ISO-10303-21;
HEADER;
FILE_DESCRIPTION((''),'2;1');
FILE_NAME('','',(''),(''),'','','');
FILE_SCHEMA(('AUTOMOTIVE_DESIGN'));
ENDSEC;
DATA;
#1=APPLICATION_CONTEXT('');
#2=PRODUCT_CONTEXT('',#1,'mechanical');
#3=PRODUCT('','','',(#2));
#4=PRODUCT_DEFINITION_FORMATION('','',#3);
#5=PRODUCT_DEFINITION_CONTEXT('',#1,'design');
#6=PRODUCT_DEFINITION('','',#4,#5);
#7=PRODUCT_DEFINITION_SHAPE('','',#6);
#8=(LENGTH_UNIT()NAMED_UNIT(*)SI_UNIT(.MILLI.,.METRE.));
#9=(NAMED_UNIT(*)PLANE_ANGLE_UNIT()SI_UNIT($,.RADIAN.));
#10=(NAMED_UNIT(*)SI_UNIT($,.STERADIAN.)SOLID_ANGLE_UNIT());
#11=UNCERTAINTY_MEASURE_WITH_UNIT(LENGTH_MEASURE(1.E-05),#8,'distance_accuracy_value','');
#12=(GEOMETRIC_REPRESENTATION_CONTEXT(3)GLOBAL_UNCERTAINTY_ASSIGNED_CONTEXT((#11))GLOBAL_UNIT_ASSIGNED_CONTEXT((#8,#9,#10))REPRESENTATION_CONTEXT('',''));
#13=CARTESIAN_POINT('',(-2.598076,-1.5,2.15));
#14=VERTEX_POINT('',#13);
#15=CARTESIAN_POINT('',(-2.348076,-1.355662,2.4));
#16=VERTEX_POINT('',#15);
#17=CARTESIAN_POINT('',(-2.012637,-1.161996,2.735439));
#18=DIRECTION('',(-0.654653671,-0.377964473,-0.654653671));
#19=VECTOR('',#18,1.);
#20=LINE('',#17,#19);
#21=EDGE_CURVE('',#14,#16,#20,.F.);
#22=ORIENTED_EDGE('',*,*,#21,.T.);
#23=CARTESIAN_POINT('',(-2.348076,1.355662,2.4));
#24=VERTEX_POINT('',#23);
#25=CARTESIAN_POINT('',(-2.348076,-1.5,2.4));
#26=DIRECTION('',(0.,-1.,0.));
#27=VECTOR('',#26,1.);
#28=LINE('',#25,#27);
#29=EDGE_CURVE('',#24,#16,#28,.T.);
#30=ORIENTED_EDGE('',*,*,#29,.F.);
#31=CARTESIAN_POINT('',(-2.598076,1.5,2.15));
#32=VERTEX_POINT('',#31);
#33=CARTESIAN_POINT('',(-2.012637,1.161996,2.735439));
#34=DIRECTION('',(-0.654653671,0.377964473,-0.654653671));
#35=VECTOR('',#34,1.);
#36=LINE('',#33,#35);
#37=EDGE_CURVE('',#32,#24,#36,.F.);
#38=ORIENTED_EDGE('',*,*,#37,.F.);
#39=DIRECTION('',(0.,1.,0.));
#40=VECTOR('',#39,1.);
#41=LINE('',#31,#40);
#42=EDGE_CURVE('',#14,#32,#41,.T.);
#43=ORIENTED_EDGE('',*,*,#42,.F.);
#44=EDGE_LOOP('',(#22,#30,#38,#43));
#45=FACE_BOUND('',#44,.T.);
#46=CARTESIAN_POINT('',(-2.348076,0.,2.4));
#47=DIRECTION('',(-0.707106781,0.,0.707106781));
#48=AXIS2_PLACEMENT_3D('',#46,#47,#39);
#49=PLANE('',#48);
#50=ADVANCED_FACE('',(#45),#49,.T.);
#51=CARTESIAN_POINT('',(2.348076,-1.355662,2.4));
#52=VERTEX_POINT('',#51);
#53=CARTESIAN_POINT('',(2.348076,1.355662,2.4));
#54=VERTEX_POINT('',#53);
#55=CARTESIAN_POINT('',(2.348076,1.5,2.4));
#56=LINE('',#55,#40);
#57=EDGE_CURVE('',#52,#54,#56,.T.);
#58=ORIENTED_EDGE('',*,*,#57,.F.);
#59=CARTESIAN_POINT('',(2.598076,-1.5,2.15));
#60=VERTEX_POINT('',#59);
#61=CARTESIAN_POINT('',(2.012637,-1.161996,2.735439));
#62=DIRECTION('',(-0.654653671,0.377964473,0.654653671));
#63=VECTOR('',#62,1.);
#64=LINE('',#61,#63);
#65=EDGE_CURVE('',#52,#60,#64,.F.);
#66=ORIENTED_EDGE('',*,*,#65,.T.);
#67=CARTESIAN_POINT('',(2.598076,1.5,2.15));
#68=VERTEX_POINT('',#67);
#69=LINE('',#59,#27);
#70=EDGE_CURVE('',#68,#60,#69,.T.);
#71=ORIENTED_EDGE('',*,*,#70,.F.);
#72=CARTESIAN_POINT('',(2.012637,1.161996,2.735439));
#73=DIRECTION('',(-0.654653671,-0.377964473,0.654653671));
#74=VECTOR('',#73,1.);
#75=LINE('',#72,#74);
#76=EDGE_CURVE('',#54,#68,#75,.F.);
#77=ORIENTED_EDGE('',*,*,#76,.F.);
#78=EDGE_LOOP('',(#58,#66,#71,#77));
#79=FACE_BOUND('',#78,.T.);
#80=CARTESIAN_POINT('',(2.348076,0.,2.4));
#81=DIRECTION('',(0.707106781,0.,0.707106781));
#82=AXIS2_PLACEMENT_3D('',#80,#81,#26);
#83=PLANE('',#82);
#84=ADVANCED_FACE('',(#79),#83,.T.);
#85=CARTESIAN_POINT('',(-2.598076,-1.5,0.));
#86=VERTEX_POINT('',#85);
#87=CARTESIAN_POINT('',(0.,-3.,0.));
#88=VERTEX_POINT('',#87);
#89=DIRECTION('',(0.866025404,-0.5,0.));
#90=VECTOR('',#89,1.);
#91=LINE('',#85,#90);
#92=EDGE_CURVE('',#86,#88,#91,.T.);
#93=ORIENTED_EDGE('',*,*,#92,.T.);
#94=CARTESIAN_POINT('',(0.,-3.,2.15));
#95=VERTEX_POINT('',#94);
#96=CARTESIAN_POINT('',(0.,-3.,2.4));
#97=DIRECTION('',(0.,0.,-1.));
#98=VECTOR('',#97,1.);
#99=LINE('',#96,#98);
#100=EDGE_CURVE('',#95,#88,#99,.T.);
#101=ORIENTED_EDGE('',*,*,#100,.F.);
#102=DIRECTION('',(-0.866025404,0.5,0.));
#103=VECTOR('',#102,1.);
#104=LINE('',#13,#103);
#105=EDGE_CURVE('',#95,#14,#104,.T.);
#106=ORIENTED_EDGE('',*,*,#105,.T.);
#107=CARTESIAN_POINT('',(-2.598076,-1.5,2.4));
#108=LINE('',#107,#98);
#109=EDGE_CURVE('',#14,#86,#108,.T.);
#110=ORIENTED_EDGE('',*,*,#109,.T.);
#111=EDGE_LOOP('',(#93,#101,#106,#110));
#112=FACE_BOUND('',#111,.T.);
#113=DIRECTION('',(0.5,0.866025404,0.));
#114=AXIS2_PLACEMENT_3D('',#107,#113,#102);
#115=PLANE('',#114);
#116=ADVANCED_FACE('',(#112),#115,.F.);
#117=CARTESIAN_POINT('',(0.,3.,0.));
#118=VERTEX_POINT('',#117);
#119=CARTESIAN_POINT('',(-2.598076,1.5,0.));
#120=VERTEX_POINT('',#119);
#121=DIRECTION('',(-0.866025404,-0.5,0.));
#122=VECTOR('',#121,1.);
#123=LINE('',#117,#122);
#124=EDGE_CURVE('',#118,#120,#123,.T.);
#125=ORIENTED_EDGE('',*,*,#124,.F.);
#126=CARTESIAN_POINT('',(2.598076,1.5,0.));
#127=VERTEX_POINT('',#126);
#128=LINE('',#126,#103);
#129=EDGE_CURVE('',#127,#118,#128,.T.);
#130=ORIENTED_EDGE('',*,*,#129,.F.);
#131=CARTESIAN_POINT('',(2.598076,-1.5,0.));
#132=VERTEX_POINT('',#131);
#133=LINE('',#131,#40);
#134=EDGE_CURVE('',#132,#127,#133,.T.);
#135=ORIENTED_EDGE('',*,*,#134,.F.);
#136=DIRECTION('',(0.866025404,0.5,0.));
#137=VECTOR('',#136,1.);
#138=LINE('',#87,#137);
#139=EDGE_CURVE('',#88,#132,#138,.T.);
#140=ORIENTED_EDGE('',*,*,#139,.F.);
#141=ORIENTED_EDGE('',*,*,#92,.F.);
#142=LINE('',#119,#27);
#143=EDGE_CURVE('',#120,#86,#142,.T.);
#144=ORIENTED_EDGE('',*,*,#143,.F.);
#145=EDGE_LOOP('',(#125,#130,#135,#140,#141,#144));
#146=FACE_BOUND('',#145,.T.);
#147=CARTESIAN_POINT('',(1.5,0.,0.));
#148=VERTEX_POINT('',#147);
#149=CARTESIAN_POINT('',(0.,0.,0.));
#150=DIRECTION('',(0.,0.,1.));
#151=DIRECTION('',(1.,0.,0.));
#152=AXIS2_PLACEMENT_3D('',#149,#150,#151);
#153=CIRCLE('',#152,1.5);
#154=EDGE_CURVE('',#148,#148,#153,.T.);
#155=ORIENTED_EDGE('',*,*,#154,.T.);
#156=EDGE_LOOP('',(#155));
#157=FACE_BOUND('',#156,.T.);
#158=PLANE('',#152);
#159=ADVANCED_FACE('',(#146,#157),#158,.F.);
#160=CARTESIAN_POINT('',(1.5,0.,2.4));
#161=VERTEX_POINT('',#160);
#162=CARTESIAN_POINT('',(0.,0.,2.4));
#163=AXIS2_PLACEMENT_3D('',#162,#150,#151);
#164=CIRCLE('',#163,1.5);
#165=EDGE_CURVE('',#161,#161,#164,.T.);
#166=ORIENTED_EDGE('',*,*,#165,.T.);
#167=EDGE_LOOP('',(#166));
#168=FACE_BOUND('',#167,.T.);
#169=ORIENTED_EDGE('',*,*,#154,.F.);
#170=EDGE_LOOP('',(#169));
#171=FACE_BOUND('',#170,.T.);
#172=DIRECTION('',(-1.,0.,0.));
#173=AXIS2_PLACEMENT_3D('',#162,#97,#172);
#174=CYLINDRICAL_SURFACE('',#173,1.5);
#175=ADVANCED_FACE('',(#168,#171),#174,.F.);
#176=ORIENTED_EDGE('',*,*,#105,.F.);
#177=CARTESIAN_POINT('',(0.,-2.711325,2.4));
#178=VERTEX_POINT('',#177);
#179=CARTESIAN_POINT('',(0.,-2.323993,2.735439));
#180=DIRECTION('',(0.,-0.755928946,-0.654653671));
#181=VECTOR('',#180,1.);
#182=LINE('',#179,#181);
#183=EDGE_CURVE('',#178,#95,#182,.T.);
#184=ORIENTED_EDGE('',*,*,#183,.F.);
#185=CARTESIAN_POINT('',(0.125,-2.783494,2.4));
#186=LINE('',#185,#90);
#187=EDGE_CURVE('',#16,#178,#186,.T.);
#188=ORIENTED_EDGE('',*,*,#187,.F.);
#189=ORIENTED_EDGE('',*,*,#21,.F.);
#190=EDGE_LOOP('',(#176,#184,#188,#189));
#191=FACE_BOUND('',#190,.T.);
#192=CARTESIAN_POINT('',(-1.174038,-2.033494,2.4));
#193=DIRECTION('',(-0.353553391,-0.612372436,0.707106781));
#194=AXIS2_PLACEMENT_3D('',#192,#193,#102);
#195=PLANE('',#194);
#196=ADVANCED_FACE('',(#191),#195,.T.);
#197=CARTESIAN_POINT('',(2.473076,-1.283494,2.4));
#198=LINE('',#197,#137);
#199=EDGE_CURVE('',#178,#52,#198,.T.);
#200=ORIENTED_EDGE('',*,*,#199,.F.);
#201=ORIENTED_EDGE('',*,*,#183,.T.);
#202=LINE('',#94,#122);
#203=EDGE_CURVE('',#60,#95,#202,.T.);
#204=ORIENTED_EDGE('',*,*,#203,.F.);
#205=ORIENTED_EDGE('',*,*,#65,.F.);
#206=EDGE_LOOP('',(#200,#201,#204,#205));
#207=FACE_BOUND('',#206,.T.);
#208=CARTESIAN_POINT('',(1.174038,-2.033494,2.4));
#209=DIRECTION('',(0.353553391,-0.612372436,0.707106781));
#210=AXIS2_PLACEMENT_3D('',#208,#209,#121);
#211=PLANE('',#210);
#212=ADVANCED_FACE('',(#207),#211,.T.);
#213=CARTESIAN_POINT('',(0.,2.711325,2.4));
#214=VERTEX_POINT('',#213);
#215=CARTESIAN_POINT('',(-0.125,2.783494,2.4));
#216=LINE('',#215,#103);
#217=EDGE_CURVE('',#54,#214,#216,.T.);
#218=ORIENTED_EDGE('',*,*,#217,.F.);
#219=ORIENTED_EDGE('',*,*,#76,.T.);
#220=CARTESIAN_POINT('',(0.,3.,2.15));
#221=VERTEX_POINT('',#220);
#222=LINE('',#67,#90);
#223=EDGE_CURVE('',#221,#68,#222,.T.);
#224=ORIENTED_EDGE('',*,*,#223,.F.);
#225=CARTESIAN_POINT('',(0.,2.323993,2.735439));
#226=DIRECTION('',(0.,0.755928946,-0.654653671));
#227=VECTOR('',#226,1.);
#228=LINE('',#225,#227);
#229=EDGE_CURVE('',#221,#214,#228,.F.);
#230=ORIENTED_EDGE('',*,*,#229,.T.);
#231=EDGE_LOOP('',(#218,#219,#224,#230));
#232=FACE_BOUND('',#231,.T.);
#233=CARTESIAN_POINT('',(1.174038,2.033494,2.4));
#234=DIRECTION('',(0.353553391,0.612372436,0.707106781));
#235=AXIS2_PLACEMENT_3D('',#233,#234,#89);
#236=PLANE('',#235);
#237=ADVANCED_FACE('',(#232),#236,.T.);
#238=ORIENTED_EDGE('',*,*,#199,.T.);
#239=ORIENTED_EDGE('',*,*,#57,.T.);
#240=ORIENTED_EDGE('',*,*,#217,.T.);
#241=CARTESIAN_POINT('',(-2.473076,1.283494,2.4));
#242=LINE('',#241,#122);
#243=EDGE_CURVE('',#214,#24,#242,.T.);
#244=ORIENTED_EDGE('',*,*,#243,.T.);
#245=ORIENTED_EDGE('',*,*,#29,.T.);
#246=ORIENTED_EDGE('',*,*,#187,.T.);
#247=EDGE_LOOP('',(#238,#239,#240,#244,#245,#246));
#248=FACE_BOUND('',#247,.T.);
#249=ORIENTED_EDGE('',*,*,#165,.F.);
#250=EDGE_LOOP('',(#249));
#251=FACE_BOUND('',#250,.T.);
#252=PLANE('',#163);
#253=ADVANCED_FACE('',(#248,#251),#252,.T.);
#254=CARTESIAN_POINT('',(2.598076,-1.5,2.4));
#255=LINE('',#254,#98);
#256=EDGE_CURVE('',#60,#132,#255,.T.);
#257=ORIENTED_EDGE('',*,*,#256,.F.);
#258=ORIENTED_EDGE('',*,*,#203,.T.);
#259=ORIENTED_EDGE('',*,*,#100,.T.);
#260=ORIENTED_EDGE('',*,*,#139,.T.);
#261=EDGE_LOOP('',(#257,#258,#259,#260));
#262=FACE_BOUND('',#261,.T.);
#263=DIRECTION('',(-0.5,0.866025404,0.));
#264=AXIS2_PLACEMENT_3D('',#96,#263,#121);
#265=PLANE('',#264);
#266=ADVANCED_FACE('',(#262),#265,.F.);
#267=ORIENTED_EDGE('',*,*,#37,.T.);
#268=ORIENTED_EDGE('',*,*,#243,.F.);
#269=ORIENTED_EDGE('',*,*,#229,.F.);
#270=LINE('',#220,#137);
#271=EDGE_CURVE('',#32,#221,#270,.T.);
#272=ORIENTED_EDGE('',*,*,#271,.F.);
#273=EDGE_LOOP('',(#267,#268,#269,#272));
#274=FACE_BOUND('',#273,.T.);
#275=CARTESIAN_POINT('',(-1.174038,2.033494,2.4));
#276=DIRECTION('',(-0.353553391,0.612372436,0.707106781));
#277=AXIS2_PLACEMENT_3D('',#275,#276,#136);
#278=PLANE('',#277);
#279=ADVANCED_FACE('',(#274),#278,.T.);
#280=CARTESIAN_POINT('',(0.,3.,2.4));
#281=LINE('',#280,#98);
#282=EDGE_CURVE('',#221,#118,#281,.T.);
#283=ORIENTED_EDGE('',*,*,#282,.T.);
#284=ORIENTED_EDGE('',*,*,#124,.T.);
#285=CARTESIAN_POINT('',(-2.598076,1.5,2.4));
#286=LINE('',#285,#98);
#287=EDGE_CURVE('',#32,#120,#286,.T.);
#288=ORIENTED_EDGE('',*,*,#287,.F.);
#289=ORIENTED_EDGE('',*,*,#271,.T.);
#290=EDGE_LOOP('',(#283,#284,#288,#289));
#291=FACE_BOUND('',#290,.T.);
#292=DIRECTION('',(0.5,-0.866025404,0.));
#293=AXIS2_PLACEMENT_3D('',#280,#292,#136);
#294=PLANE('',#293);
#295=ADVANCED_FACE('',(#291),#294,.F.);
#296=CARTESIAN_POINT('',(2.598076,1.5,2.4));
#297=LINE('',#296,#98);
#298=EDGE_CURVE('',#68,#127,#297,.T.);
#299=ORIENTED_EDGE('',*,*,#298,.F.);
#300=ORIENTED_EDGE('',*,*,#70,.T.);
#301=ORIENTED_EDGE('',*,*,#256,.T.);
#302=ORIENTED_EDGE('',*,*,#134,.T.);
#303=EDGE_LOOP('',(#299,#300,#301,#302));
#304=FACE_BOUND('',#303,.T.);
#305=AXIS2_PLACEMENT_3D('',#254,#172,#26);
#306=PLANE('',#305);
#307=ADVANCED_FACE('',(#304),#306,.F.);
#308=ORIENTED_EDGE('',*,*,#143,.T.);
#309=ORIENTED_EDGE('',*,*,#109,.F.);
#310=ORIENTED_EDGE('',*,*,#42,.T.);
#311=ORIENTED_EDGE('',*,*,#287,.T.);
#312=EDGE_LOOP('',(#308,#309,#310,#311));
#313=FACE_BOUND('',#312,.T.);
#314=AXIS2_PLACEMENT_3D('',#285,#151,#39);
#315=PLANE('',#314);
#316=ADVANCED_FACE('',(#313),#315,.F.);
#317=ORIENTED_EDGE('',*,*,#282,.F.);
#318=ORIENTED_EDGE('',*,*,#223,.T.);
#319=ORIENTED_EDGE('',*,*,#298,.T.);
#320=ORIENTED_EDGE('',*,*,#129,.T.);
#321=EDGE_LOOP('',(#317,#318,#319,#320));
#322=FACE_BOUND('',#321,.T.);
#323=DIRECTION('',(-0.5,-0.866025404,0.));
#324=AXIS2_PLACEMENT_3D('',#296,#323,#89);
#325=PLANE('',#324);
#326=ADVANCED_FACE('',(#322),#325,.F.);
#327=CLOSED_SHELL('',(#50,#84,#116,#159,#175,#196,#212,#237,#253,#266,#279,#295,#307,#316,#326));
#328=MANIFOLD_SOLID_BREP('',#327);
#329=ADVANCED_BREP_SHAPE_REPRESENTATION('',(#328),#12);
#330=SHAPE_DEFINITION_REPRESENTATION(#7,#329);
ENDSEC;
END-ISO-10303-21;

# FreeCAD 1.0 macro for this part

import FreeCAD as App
import Part
import Sketcher

V = App.Vector
Q = App.Units.Quantity


def edges_at(feature, points):
    """Names of the edges that pass closest to the given points."""
    edges = feature.Shape.Edges
    near = lambda p: min(range(len(edges)), key=lambda i: edges[i].distToShape(Part.Vertex(*p))[0])
    return sorted({f"Edge{near(p) + 1}" for p in points})


def add_polygon(sketch, points):
    """Adds a closed chain of lines whose ends are joined by coincident constraints."""
    first, n = sketch.GeometryCount, len(points)
    for a, b in zip(points, points[1:] + points[:1]):
        sketch.addGeometry(Part.LineSegment(App.Vector(*a, 0), App.Vector(*b, 0)), False)
    for i in range(n):
        sketch.addConstraint(Sketcher.Constraint("Coincident", first + i, 2, first + (i + 1) % n, 1))

doc = App.newDocument("Part")
body = doc.addObject("PartDesign::Body", "Body")

sketch1 = body.newObject("Sketcher::SketchObject", "Sketch")
sketch1.AttachmentSupport = (doc.getObject("XY_Plane"), [""])
sketch1.MapMode = "FlatFace"
add_polygon(sketch1, [(0, -3), (2.6, -1.5), (2.6, 1.5), (0, 3), (-2.6, 1.5), (-2.6, -1.5)])
sketch1.addGeometry(Part.Circle(V(0, 0, 0), V(0, 0, 1), 1.5), False)
sketch1.addConstraint(Sketcher.Constraint("Vertical", 1))
sketch1.addConstraint(Sketcher.Constraint("Vertical", 4))
sketch1.addConstraint(Sketcher.Constraint("Coincident", 6, 3, -1, 1))
sketch1.addConstraint(Sketcher.Constraint("Symmetric", 0, 2, 3, 2, -1, 1))
sketch1.addConstraint(Sketcher.Constraint("Symmetric", 2, 2, 5, 2, -1, 1))
sketch1.addConstraint(Sketcher.Constraint("PointOnObject", 2, 2, -2))
sketch1.addConstraint(Sketcher.Constraint("Parallel", 2, 5))
sketch1.addConstraint(Sketcher.Constraint("Horizontal", 1, 2, 3, 2))
sketch1.addConstraint(Sketcher.Constraint("Diameter", 6, 3.0))
sketch1.addConstraint(Sketcher.Constraint("DistanceY", 1, 1, 1, 2, 3.0))
sketch1.addConstraint(Sketcher.Constraint("Angle", 0, Q("30 deg")))
sketch1.addConstraint(Sketcher.Constraint("Distance", 0, 3.0))
pad1 = body.newObject("PartDesign::Pad", "Pad")
pad1.Profile = sketch1
pad1.Length = 2.4
doc.recompute()

chamfer = body.newObject("PartDesign::Chamfer", "Chamfer")
chamfer.Base = (pad1, edges_at(pad1, [
    (2.598, 0, 2.4),
    (1.299, 2.25, 2.4),
    (-1.299, 2.25, 2.4),
    (-2.598, 0, 2.4),
    (-1.299, -2.25, 2.4),
    (1.299, -2.25, 2.4),
]))
chamfer.Size = 0.25

doc.recompute()
